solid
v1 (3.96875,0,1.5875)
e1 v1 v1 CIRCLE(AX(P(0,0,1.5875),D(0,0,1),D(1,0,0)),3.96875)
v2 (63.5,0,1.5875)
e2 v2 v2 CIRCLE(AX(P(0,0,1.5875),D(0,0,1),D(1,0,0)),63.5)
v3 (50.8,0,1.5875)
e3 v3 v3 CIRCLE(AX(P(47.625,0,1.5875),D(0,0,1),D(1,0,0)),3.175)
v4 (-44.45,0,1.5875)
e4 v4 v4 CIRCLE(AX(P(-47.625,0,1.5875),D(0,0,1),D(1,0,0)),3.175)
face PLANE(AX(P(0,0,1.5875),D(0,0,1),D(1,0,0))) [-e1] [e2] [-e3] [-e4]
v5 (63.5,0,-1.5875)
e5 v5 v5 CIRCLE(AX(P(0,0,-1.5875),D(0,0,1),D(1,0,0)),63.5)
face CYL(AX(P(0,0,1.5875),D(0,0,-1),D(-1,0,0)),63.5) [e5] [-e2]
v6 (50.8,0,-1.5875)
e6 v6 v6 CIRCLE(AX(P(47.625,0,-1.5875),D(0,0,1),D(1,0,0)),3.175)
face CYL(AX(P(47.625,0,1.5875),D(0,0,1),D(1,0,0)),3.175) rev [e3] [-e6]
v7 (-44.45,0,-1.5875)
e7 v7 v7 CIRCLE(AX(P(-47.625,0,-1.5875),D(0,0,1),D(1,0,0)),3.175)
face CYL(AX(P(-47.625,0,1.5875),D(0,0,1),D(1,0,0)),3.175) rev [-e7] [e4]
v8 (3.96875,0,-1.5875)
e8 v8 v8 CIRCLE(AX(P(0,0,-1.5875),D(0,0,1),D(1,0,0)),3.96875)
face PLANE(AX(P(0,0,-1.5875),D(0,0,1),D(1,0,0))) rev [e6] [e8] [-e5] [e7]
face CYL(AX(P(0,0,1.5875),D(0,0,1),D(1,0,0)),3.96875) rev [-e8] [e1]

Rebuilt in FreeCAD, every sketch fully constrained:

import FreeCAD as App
import Part
import Sketcher

V = App.Vector
Q = App.Units.Quantity

doc = App.newDocument("Part")
body = doc.addObject("PartDesign::Body", "Body")

# Sketch on XY plane
sketch1 = body.newObject("Sketcher::SketchObject", "Sketch")
sketch1.AttachmentSupport = (doc.getObject("XY_Plane"), [""])
sketch1.MapMode = "FlatFace"
sketch1.addGeometry(Part.Circle(V(0, 0, 0), V(0, 0, 1), 64), False)
sketch1.addConstraint([
    Sketcher.Constraint("Coincident", 0, 3, -1, 1),
    Sketcher.Constraint("Diameter", 0, Q("5 in")),
])
pad1 = body.newObject("PartDesign::Pad", "Pad")
pad1.Profile = sketch1
pad1.Length = Q("0.125 in")
pad1.Midplane = True

# Sketch on XY plane
sketch2 = body.newObject("Sketcher::SketchObject", "Sketch001")
sketch2.AttachmentSupport = (doc.getObject("XY_Plane"), [""])
sketch2.MapMode = "FlatFace"
sketch2.AttachmentOffset = App.Placement(V(0, 0, 0.0625 * 25.4), App.Rotation())
sketch2.addGeometry([
    Part.Circle(V(-47.6, 0, 0), V(0, 0, 1), 3.2),
    Part.Circle(V(47.6, 0, 0), V(0, 0, 1), 3.2),
], False)
sketch2.addConstraint([
    Sketcher.Constraint("Equal", 0, 1),
    Sketcher.Constraint("Symmetric", 0, 3, 1, 3, -1, 1),
    Sketcher.Constraint("PointOnObject", 0, 3, -1),
    Sketcher.Constraint("Diameter", 0, Q("0.25 in")),
    Sketcher.Constraint("DistanceX", 0, 3, 1, 3, Q("3.75 in")),
])
doc.recompute()
hole = body.newObject("PartDesign::Hole", "Hole")
hole.Profile = sketch2
hole.ThreadType = "None"
hole.Diameter = Q("0.25 in")
hole.DepthType = "ThroughAll"

# Sketch on XY plane
sketch3 = body.newObject("Sketcher::SketchObject", "Sketch002")
sketch3.AttachmentSupport = (doc.getObject("XY_Plane"), [""])
sketch3.MapMode = "FlatFace"
sketch3.AttachmentOffset = App.Placement(V(0, 0, 0.0625 * 25.4), App.Rotation())
sketch3.addGeometry(Part.Circle(V(0, 0, 0), V(0, 0, 1), 4), False)
sketch3.addConstraint([
    Sketcher.Constraint("Coincident", 0, 3, -1, 1),
    Sketcher.Constraint("Diameter", 0, Q("0.3125 in")),
])
doc.recompute()
hole2 = body.newObject("PartDesign::Hole", "Hole001")
hole2.Profile = sketch3
hole2.ThreadType = "None"
hole2.Diameter = Q("0.3125 in")
hole2.DepthType = "Dimension"
hole2.Depth = Q("0.13 in")
hole2.DrillPoint = "Flat"

doc.recompute()
